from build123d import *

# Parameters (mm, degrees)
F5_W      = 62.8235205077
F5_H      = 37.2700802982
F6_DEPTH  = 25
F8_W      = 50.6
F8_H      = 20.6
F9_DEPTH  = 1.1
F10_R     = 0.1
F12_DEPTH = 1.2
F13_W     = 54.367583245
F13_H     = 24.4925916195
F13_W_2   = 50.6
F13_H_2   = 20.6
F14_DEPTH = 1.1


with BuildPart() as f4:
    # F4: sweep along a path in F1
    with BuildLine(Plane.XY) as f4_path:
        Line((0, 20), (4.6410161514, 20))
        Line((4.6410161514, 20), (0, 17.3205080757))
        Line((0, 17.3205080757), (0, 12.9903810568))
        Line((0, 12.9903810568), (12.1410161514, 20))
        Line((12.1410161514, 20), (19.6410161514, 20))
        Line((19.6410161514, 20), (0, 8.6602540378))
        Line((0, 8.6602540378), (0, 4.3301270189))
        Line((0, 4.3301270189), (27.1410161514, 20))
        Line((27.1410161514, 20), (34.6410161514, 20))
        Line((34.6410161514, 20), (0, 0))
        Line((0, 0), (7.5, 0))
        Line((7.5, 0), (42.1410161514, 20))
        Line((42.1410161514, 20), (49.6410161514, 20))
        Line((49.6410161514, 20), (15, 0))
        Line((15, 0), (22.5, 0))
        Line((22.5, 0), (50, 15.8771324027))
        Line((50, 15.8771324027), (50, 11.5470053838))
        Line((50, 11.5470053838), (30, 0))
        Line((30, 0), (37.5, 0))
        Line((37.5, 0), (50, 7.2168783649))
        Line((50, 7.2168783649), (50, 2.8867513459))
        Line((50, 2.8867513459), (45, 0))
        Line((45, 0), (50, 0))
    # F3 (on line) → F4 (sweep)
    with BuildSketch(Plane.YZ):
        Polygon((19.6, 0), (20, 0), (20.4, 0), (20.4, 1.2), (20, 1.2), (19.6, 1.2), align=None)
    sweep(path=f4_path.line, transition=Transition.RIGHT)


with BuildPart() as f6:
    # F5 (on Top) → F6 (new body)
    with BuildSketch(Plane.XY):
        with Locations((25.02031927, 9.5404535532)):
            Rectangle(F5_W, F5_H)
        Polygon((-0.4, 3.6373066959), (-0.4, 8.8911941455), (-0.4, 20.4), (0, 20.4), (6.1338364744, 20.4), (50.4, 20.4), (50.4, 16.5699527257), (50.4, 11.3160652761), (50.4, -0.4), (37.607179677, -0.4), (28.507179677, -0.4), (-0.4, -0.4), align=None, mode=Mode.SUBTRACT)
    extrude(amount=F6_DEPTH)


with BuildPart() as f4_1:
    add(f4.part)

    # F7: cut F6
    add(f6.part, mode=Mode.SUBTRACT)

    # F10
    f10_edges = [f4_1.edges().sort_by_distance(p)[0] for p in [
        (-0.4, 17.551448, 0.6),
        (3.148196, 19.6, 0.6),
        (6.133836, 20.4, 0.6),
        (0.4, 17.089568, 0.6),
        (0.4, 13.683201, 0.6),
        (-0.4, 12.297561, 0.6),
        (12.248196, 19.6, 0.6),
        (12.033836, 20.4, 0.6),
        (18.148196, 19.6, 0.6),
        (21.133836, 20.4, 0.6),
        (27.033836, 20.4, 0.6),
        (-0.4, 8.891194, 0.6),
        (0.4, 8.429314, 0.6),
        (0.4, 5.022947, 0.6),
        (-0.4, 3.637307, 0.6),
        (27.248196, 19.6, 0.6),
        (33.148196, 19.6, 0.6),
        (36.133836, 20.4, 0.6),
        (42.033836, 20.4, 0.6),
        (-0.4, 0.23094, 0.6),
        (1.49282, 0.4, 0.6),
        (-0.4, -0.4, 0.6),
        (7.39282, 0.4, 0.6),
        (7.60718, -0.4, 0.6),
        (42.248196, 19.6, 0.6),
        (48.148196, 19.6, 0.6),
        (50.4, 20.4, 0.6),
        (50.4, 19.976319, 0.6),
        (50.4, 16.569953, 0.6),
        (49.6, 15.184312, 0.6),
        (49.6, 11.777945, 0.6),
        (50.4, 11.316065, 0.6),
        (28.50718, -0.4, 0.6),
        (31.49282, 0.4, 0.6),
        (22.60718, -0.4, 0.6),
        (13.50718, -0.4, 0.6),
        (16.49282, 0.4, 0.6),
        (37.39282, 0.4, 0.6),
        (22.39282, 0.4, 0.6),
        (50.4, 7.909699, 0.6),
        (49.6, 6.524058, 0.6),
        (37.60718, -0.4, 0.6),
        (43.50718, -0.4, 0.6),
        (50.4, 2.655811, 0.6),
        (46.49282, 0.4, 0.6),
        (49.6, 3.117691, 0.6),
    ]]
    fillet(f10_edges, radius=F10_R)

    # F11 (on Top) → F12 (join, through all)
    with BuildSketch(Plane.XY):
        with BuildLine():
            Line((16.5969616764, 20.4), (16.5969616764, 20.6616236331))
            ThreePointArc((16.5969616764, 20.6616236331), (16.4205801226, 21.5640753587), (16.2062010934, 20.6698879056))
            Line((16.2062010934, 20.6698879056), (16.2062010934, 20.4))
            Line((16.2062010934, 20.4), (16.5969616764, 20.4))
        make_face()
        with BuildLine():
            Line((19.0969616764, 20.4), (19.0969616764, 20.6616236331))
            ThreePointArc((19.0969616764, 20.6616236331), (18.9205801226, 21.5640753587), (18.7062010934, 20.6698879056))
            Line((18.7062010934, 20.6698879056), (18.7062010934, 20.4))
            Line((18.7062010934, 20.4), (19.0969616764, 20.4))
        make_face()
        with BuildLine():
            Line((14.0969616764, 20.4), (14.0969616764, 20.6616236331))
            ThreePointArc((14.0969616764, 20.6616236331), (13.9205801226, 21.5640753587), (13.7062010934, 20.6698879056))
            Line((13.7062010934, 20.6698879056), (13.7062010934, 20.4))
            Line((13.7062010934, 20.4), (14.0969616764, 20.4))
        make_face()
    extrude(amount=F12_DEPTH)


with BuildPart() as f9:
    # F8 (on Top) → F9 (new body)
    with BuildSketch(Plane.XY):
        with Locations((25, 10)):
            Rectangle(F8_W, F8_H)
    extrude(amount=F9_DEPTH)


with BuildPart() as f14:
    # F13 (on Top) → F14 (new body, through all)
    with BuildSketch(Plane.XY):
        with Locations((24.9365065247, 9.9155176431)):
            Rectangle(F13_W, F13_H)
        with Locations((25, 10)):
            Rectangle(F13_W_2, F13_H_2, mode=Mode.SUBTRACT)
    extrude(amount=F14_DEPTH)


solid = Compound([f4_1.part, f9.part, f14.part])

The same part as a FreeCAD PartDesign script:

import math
import FreeCAD as App
import Part
import Sketcher
Q = App.Units.Quantity


def edges_at(feature, points):
    """Names of the edges that pass closest to the given points."""
    edges = feature.Shape.Edges
    near = lambda p: min(range(len(edges)), key=lambda i: edges[i].distToShape(Part.Vertex(*p))[0])
    return sorted({f"Edge{near(p) + 1}" for p in points})


def add_polygon(sketch, points):
    """Adds a closed chain of lines whose ends are joined by coincident constraints."""
    first, n = sketch.GeometryCount, len(points)
    for a, b in zip(points, points[1:] + points[:1]):
        sketch.addGeometry(Part.LineSegment(App.Vector(*a, 0), App.Vector(*b, 0)), False)
    for i in range(n):
        sketch.addConstraint(Sketcher.Constraint("Coincident", first + i, 2, first + (i + 1) % n, 1))

doc = App.newDocument("Part")
params = doc.addObject("Spreadsheet::Sheet", "Params")
for row, (alias, value) in enumerate([
    ("sketch1_width", "0.8 mm"),
    ("sketch1_height", "1.2 mm"),
    ("sketch2_width", "5 mm"),
    ("sketch2_length", "40 mm"),
    ("sketch2_width2", "7.5 mm"),
    ("sketch3_width", "50.8 mm"),
    ("sketch3_height", "20.8 mm"),
    ("pad1_length", "25 mm"),
    ("fillet_radius", "0.1 mm"),
    ("pad2_length", "1.2 mm"),
    ("sketch5_width", "50.6 mm"),
    ("sketch5_height", "20.6 mm"),
    ("pad3_length", "1.1 mm"),
    ("sketch6_width", "50.6 mm"),
    ("sketch6_height", "20.6 mm"),
    ("pad4_length", "1.1 mm"),
], start=1):
    params.set(f"A{row}", alias)
    params.set(f"B{row}", "=" + value)
    params.setAlias(f"B{row}", alias)

body = doc.addObject("PartDesign::Body", "Body")

# Sketch on YZ plane
sketch1 = body.newObject("Sketcher::SketchObject", "Sketch")
sketch1.AttachmentSupport = (doc.getObject("YZ_Plane"), [""])
sketch1.MapMode = "FlatFace"
add_polygon(sketch1, [(19.6, 0), (20.4, 0), (20.4, 1.2), (19.6, 1.2)])  # lines 0-3
sketch1.addConstraint([
    Sketcher.Constraint("Horizontal", 0),
    Sketcher.Constraint("Vertical", 1),
    Sketcher.Constraint("Horizontal", 2),
    Sketcher.Constraint("Vertical", 3),
    Sketcher.Constraint("PointOnObject", 0, 2, -1),
    Sketcher.Constraint("DistanceX", 0, 1, 0, 2, Q("0.8 mm")),
    Sketcher.Constraint("DistanceY", 1, 1, 1, 2, Q("1.2 mm")),
    Sketcher.Constraint("DistanceX", -1, 1, 0, 2, Q("20.4 mm")),
])
sketch1.setExpression("Constraints[9]", "Params.sketch1_width")
sketch1.setExpression("Constraints[10]", "Params.sketch1_height")

# Sketch on XY plane
sketch2 = body.newObject("Sketcher::SketchObject", "Sketch001")
sketch2.AttachmentSupport = (doc.getObject("XY_Plane"), [""])
sketch2.MapMode = "FlatFace"
sketch2.addGeometry([
    Part.LineSegment(App.Vector(0, 20, 0), App.Vector(4.6, 20, 0)),  # 0
    Part.LineSegment(App.Vector(4.6, 20, 0), App.Vector(0, 17.3, 0)),  # 1
    Part.LineSegment(App.Vector(0, 17.3, 0), App.Vector(0, 13, 0)),  # 2
    Part.LineSegment(App.Vector(0, 13, 0), App.Vector(12.1, 20, 0)),  # 3
    Part.LineSegment(App.Vector(12.1, 20, 0), App.Vector(19.6, 20, 0)),  # 4
    Part.LineSegment(App.Vector(19.6, 20, 0), App.Vector(0, 8.7, 0)),  # 5
    Part.LineSegment(App.Vector(0, 8.7, 0), App.Vector(0, 4.3, 0)),  # 6
    Part.LineSegment(App.Vector(0, 4.3, 0), App.Vector(27.1, 20, 0)),  # 7
    Part.LineSegment(App.Vector(27.1, 20, 0), App.Vector(34.6, 20, 0)),  # 8
    Part.LineSegment(App.Vector(34.6, 20, 0), App.Vector(0, 0, 0)),  # 9
    Part.LineSegment(App.Vector(0, 0, 0), App.Vector(7.5, 0, 0)),  # 10
    Part.LineSegment(App.Vector(7.5, 0, 0), App.Vector(42.1, 20, 0)),  # 11
    Part.LineSegment(App.Vector(42.1, 20, 0), App.Vector(49.6, 20, 0)),  # 12
    Part.LineSegment(App.Vector(49.6, 20, 0), App.Vector(15, 0, 0)),  # 13
    Part.LineSegment(App.Vector(15, 0, 0), App.Vector(22.5, 0, 0)),  # 14
    Part.LineSegment(App.Vector(22.5, 0, 0), App.Vector(50, 15.9, 0)),  # 15
    Part.LineSegment(App.Vector(50, 15.9, 0), App.Vector(50, 11.5, 0)),  # 16
    Part.LineSegment(App.Vector(50, 11.5, 0), App.Vector(30, 0, 0)),  # 17
    Part.LineSegment(App.Vector(30, 0, 0), App.Vector(37.5, 0, 0)),  # 18
    Part.LineSegment(App.Vector(37.5, 0, 0), App.Vector(50, 7.2, 0)),  # 19
    Part.LineSegment(App.Vector(50, 7.2, 0), App.Vector(50, 2.9, 0)),  # 20
    Part.LineSegment(App.Vector(50, 2.9, 0), App.Vector(45, 0, 0)),  # 21
    Part.LineSegment(App.Vector(45, 0, 0), App.Vector(50, 0, 0)),  # 22
], False)
sketch2.addConstraint([
    Sketcher.Constraint("Coincident", 0, 2, 1, 1),
    Sketcher.Constraint("Coincident", 1, 2, 2, 1),
    Sketcher.Constraint("Coincident", 2, 2, 3, 1),
    Sketcher.Constraint("Coincident", 3, 2, 4, 1),
    Sketcher.Constraint("Coincident", 4, 2, 5, 1),
    Sketcher.Constraint("Coincident", 5, 2, 6, 1),
    Sketcher.Constraint("Coincident", 6, 2, 7, 1),
    Sketcher.Constraint("Coincident", 7, 2, 8, 1),
    Sketcher.Constraint("Coincident", 8, 2, 9, 1),
    Sketcher.Constraint("Coincident", 9, 2, 10, 1),
    Sketcher.Constraint("Coincident", 10, 2, 11, 1),
    Sketcher.Constraint("Coincident", 11, 2, 12, 1),
    Sketcher.Constraint("Coincident", 12, 2, 13, 1),
    Sketcher.Constraint("Coincident", 13, 2, 14, 1),
    Sketcher.Constraint("Coincident", 14, 2, 15, 1),
    Sketcher.Constraint("Coincident", 15, 2, 16, 1),
    Sketcher.Constraint("Coincident", 16, 2, 17, 1),
    Sketcher.Constraint("Coincident", 17, 2, 18, 1),
    Sketcher.Constraint("Coincident", 18, 2, 19, 1),
    Sketcher.Constraint("Coincident", 19, 2, 20, 1),
    Sketcher.Constraint("Coincident", 20, 2, 21, 1),
    Sketcher.Constraint("Coincident", 21, 2, 22, 1),
    Sketcher.Constraint("Horizontal", 0),
    Sketcher.Constraint("Vertical", 2),
    Sketcher.Constraint("Horizontal", 4),
    Sketcher.Constraint("Vertical", 6),
    Sketcher.Constraint("Horizontal", 8),
    Sketcher.Constraint("Horizontal", 10),
    Sketcher.Constraint("Horizontal", 12),
    Sketcher.Constraint("Horizontal", 14),
    Sketcher.Constraint("Vertical", 16),
    Sketcher.Constraint("Horizontal", 18),
    Sketcher.Constraint("Vertical", 20),
    Sketcher.Constraint("Horizontal", 22),
    Sketcher.Constraint("Coincident", 9, 2, -1, 1),
    Sketcher.Constraint("PointOnObject", 0, 1, -2),
    Sketcher.Constraint("PointOnObject", 1, 2, -2),
    Sketcher.Constraint("PointOnObject", 5, 2, -2),
    Sketcher.Constraint("PointOnObject", 13, 2, -1),
    Sketcher.Constraint("PointOnObject", 17, 2, -1),
    Sketcher.Constraint("PointOnObject", 21, 2, -1),
    Sketcher.Constraint("Parallel", 1, 3),
    Sketcher.Constraint("Parallel", 3, 5),
    Sketcher.Constraint("Parallel", 5, 7),
    Sketcher.Constraint("Parallel", 7, 9),
    Sketcher.Constraint("Parallel", 9, 11),
    Sketcher.Constraint("Parallel", 11, 13),
    Sketcher.Constraint("Parallel", 13, 15),
    Sketcher.Constraint("Parallel", 15, 17),
    Sketcher.Constraint("Parallel", 17, 19),
    Sketcher.Constraint("Parallel", 19, 21),
    Sketcher.Constraint("Horizontal", 0, 2, 3, 2),
    Sketcher.Constraint("Horizontal", 4, 2, 7, 2),
    Sketcher.Constraint("Horizontal", 8, 2, 11, 2),
    Sketcher.Constraint("Vertical", 16, 2, 19, 2),
    Sketcher.Constraint("Vertical", 20, 2, 22, 2),
    Sketcher.Constraint("Equal", 4, 8),
    Sketcher.Constraint("Equal", 8, 10),
    Sketcher.Constraint("Equal", 10, 12),
    Sketcher.Constraint("Equal", 12, 14),
    Sketcher.Constraint("Equal", 14, 18),
    Sketcher.Constraint("Equal", 2, 6),
    Sketcher.Constraint("Equal", 6, 16),
    Sketcher.Constraint("Equal", 16, 20),
    Sketcher.Constraint("DistanceX", 22, 1, 22, 2, Q("5 mm")),
    Sketcher.Constraint("Angle", 1, Q("-150 deg")),
    Sketcher.Constraint("Distance", 9, Q("40 mm")),
    Sketcher.Constraint("DistanceX", 4, 1, 4, 2, Q("7.5 mm")),
    Sketcher.Constraint("DistanceX", -1, 1, 15, 2, Q("50 mm")),
])
sketch2.setExpression("Constraints[64]", "Params.sketch2_width")
sketch2.setExpression("Constraints[66]", "Params.sketch2_length")
sketch2.setExpression("Constraints[67]", "Params.sketch2_width2")
doc.recompute()

additivepipe = body.newObject("PartDesign::AdditivePipe", "AdditivePipe")
additivepipe.Profile = sketch1
additivepipe.Spine = (sketch2, ["Edge1", "Edge2", "Edge3", "Edge4", "Edge5", "Edge6", "Edge7", "Edge8", "Edge9", "Edge10", "Edge11", "Edge12", "Edge13", "Edge14", "Edge15", "Edge16", "Edge17", "Edge18", "Edge19", "Edge20", "Edge21", "Edge22", "Edge23"])
additivepipe.Transition = "Right corner"
body2 = doc.addObject("PartDesign::Body", "Body001")

# Sketch on XY plane
sketch3 = body2.newObject("Sketcher::SketchObject", "Sketch002")
sketch3.AttachmentSupport = (doc.getObject("XY_Plane001"), [""])
sketch3.MapMode = "FlatFace"
add_polygon(sketch3, [(-6, 28), (-6, -9), (56, -9), (56, 28)])  # lines 0-3
add_polygon(sketch3, [(0, 0), (0, 20), (50, 20), (50, 0)])  # lines 4-7
sketch3.addConstraint([
    Sketcher.Constraint("Vertical", 0),
    Sketcher.Constraint("Horizontal", 1),
    Sketcher.Constraint("Vertical", 2),
    Sketcher.Constraint("Horizontal", 3),
    Sketcher.Constraint("Vertical", 4),
    Sketcher.Constraint("Horizontal", 5),
    Sketcher.Constraint("Vertical", 6),
    Sketcher.Constraint("Horizontal", 7),
    Sketcher.Constraint("DistanceX", 5, 1, 5, 2, Q("50.8 mm")),
    Sketcher.Constraint("DistanceY", 4, 1, 4, 2, Q("20.8 mm")),
    Sketcher.Constraint("DistanceX", 4, 2, -1, 1, Q("0.4 mm")),
    Sketcher.Constraint("DistanceY", -1, 1, 4, 2, Q("20.4 mm")),
    Sketcher.Constraint("DistanceX", 1, 1, 1, 2, Q("62.823521 mm")),
    Sketcher.Constraint("DistanceY", 0, 2, 0, 1, Q("37.27008 mm")),
    Sketcher.Constraint("DistanceX", 0, 2, -1, 1, Q("6.391441 mm")),
    Sketcher.Constraint("DistanceY", 0, 2, -1, 1, Q("9.094587 mm")),
])
sketch3.setExpression("Constraints[16]", "Params.sketch3_width")
sketch3.setExpression("Constraints[17]", "Params.sketch3_height")
pad1 = body2.newObject("PartDesign::Pad", "Pad")
pad1.Profile = sketch3
pad1.setExpression("Length", "Params.pad1_length")
doc.recompute()

boolean = body.newObject("PartDesign::Boolean", "Boolean")
boolean.Type = "Cut"
boolean.addObjects([body2])
doc.recompute()

fillet = body.newObject("PartDesign::Fillet", "Fillet")
fillet.Base = (boolean, edges_at(boolean, [
    (-0.4, 17.551, 0.6),
    (3.148, 19.6, 0.6),
    (6.134, 20.4, 0.6),
    (0.4, 17.09, 0.6),
    (0.4, 13.683, 0.6),
    (-0.4, 12.298, 0.6),
    (12.248, 19.6, 0.6),
    (12.034, 20.4, 0.6),
    (18.148, 19.6, 0.6),
    (21.134, 20.4, 0.6),
    (27.034, 20.4, 0.6),
    (-0.4, 8.891, 0.6),
    (0.4, 8.429, 0.6),
    (0.4, 5.023, 0.6),
    (-0.4, 3.637, 0.6),
    (27.248, 19.6, 0.6),
    (33.148, 19.6, 0.6),
    (36.134, 20.4, 0.6),
    (42.034, 20.4, 0.6),
    (-0.4, 0.231, 0.6),
    (1.493, 0.4, 0.6),
    (-0.4, -0.4, 0.6),
    (7.393, 0.4, 0.6),
    (7.607, -0.4, 0.6),
    (42.248, 19.6, 0.6),
    (48.148, 19.6, 0.6),
    (50.4, 20.4, 0.6),
    (50.4, 19.976, 0.6),
    (50.4, 16.57, 0.6),
    (49.6, 15.184, 0.6),
    (49.6, 11.778, 0.6),
    (50.4, 11.316, 0.6),
    (28.507, -0.4, 0.6),
    (31.493, 0.4, 0.6),
    (22.607, -0.4, 0.6),
    (13.507, -0.4, 0.6),
    (16.493, 0.4, 0.6),
    (37.393, 0.4, 0.6),
    (22.393, 0.4, 0.6),
    (50.4, 7.91, 0.6),
    (49.6, 6.524, 0.6),
    (37.607, -0.4, 0.6),
    (43.507, -0.4, 0.6),
    (50.4, 2.656, 0.6),
    (46.493, 0.4, 0.6),
    (49.6, 3.118, 0.6),
]))
fillet.setExpression("Radius", "Params.fillet_radius")

# Sketch on XY plane
sketch4 = body.newObject("Sketcher::SketchObject", "Sketch003")
sketch4.AttachmentSupport = (doc.getObject("XY_Plane"), [""])
sketch4.MapMode = "FlatFace"
sketch4.addGeometry([
    Part.LineSegment(App.Vector(16.6, 20.4, 0), App.Vector(16.6, 20.66, 0)),  # 0
    Part.ArcOfCircle(Part.Circle(App.Vector(16.41, 21.09, 0), App.Vector(0, 0, 1), 0.47), math.radians(-67), math.radians(244)),  # 1
    Part.LineSegment(App.Vector(16.21, 20.67, 0), App.Vector(16.21, 20.4, 0)),  # 2
    Part.LineSegment(App.Vector(16.21, 20.4, 0), App.Vector(16.6, 20.4, 0)),  # 3
    Part.LineSegment(App.Vector(19.1, 20.4, 0), App.Vector(19.1, 20.66, 0)),  # 4
    Part.ArcOfCircle(Part.Circle(App.Vector(18.91, 21.09, 0), App.Vector(0, 0, 1), 0.47), math.radians(-67), math.radians(244)),  # 5
    Part.LineSegment(App.Vector(18.71, 20.67, 0), App.Vector(18.71, 20.4, 0)),  # 6
    Part.LineSegment(App.Vector(18.71, 20.4, 0), App.Vector(19.1, 20.4, 0)),  # 7
    Part.LineSegment(App.Vector(14.1, 20.4, 0), App.Vector(14.1, 20.66, 0)),  # 8
    Part.ArcOfCircle(Part.Circle(App.Vector(13.91, 21.09, 0), App.Vector(0, 0, 1), 0.47), math.radians(-67), math.radians(244)),  # 9
    Part.LineSegment(App.Vector(13.71, 20.67, 0), App.Vector(13.71, 20.4, 0)),  # 10
    Part.LineSegment(App.Vector(13.71, 20.4, 0), App.Vector(14.1, 20.4, 0)),  # 11
], False)
sketch4.addConstraint([
    Sketcher.Constraint("Coincident", 0, 2, 1, 1),
    Sketcher.Constraint("Coincident", 1, 2, 2, 1),
    Sketcher.Constraint("Coincident", 2, 2, 3, 1),
    Sketcher.Constraint("Coincident", 3, 2, 0, 1),
    Sketcher.Constraint("Coincident", 4, 2, 5, 1),
    Sketcher.Constraint("Coincident", 5, 2, 6, 1),
    Sketcher.Constraint("Coincident", 6, 2, 7, 1),
    Sketcher.Constraint("Coincident", 7, 2, 4, 1),
    Sketcher.Constraint("Coincident", 8, 2, 9, 1),
    Sketcher.Constraint("Coincident", 9, 2, 10, 1),
    Sketcher.Constraint("Coincident", 10, 2, 11, 1),
    Sketcher.Constraint("Coincident", 11, 2, 8, 1),
    Sketcher.Constraint("Vertical", 0),
    Sketcher.Constraint("Vertical", 2),
    Sketcher.Constraint("Horizontal", 3),
    Sketcher.Constraint("Vertical", 4),
    Sketcher.Constraint("Vertical", 6),
    Sketcher.Constraint("Horizontal", 7),
    Sketcher.Constraint("Vertical", 8),
    Sketcher.Constraint("Vertical", 10),
    Sketcher.Constraint("Horizontal", 11),
    Sketcher.Constraint("Equal", 1, 5),
    Sketcher.Constraint("Equal", 5, 9),
    Sketcher.Constraint("Horizontal", 1, 3, 5, 3),
    Sketcher.Constraint("Horizontal", 5, 3, 9, 3),
    Sketcher.Constraint("Horizontal", 0, 2, 4, 2),
    Sketcher.Constraint("Horizontal", 1, 2, 5, 2),
    Sketcher.Constraint("Horizontal", 3, 2, 6, 2),
    Sketcher.Constraint("Horizontal", 4, 2, 8, 2),
    Sketcher.Constraint("Horizontal", 5, 2, 9, 2),
    Sketcher.Constraint("Horizontal", 7, 2, 10, 2),
    Sketcher.Constraint("DistanceX", 9, 3, 5, 3, Q("5 mm")),
    Sketcher.Constraint("DistanceY", -1, 1, 2, 2, Q("20.4 mm")),
    Sketcher.Constraint("DistanceX", 1, 3, 5, 3, Q("2.5 mm")),
    Sketcher.Constraint("Radius", 1, Q("0.470512 mm")),
    Sketcher.Constraint("DistanceX", 3, 1, 3, 2, Q("0.390761 mm")),
    Sketcher.Constraint("DistanceX", -1, 1, 1, 2, Q("16.206201 mm")),
    Sketcher.Constraint("DistanceY", 0, 1, 0, 2, Q("0.261624 mm")),
    Sketcher.Constraint("DistanceY", 2, 2, 2, 1, Q("0.269888 mm")),
])
pad2 = body.newObject("PartDesign::Pad", "Pad001")
pad2.Profile = sketch4
pad2.setExpression("Length", "Params.pad2_length")
body3 = doc.addObject("PartDesign::Body", "Body002")

# Sketch on XY plane
sketch5 = body3.newObject("Sketcher::SketchObject", "Sketch004")
sketch5.AttachmentSupport = (doc.getObject("XY_Plane002"), [""])
sketch5.MapMode = "FlatFace"
add_polygon(sketch5, [(0, 20), (0, 0), (50, 0), (50, 20)])  # lines 0-3
sketch5.addConstraint([
    Sketcher.Constraint("Vertical", 0),
    Sketcher.Constraint("Horizontal", 1),
    Sketcher.Constraint("Vertical", 2),
    Sketcher.Constraint("Horizontal", 3),
    Sketcher.Constraint("DistanceX", 1, 1, 1, 2, Q("50.6 mm")),
    Sketcher.Constraint("DistanceY", 0, 2, 0, 1, Q("20.6 mm")),
    Sketcher.Constraint("DistanceX", 0, 2, -1, 1, Q("0.3 mm")),
    Sketcher.Constraint("DistanceY", 0, 2, -1, 1, Q("0.3 mm")),
])
sketch5.setExpression("Constraints[8]", "Params.sketch5_width")
sketch5.setExpression("Constraints[9]", "Params.sketch5_height")
pad3 = body3.newObject("PartDesign::Pad", "Pad002")
pad3.Profile = sketch5
pad3.setExpression("Length", "Params.pad3_length")
body4 = doc.addObject("PartDesign::Body", "Body003")

# Sketch on XY plane
sketch6 = body4.newObject("Sketcher::SketchObject", "Sketch005")
sketch6.AttachmentSupport = (doc.getObject("XY_Plane003"), [""])
sketch6.MapMode = "FlatFace"
add_polygon(sketch6, [(-2, 22), (-2, -2), (52, -2), (52, 22)])  # lines 0-3
add_polygon(sketch6, [(50, 0), (0, 0), (0, 20), (50, 20)])  # lines 4-7
sketch6.addConstraint([
    Sketcher.Constraint("Vertical", 0),
    Sketcher.Constraint("Horizontal", 1),
    Sketcher.Constraint("Vertical", 2),
    Sketcher.Constraint("Horizontal", 3),
    Sketcher.Constraint("Horizontal", 4),
    Sketcher.Constraint("Vertical", 5),
    Sketcher.Constraint("Horizontal", 6),
    Sketcher.Constraint("Vertical", 7),
    Sketcher.Constraint("DistanceX", 4, 2, 4, 1, Q("50.6 mm")),
    Sketcher.Constraint("DistanceY", 5, 1, 5, 2, Q("20.6 mm")),
    Sketcher.Constraint("DistanceX", 4, 2, -1, 1, Q("0.3 mm")),
    Sketcher.Constraint("DistanceY", 4, 2, -1, 1, Q("0.3 mm")),
    Sketcher.Constraint("DistanceY", 0, 2, 0, 1, Q("24.492592 mm")),
    Sketcher.Constraint("DistanceX", -1, 1, 1, 2, Q("52.120298 mm")),
    Sketcher.Constraint("DistanceX", 1, 1, 1, 2, Q("54.367583 mm")),
    Sketcher.Constraint("DistanceY", 0, 2, -1, 1, Q("2.330778 mm")),
])
sketch6.setExpression("Constraints[16]", "Params.sketch6_width")
sketch6.setExpression("Constraints[17]", "Params.sketch6_height")
pad4 = body4.newObject("PartDesign::Pad", "Pad003")
pad4.Profile = sketch6
pad4.setExpression("Length", "Params.pad4_length")

doc.recompute()
